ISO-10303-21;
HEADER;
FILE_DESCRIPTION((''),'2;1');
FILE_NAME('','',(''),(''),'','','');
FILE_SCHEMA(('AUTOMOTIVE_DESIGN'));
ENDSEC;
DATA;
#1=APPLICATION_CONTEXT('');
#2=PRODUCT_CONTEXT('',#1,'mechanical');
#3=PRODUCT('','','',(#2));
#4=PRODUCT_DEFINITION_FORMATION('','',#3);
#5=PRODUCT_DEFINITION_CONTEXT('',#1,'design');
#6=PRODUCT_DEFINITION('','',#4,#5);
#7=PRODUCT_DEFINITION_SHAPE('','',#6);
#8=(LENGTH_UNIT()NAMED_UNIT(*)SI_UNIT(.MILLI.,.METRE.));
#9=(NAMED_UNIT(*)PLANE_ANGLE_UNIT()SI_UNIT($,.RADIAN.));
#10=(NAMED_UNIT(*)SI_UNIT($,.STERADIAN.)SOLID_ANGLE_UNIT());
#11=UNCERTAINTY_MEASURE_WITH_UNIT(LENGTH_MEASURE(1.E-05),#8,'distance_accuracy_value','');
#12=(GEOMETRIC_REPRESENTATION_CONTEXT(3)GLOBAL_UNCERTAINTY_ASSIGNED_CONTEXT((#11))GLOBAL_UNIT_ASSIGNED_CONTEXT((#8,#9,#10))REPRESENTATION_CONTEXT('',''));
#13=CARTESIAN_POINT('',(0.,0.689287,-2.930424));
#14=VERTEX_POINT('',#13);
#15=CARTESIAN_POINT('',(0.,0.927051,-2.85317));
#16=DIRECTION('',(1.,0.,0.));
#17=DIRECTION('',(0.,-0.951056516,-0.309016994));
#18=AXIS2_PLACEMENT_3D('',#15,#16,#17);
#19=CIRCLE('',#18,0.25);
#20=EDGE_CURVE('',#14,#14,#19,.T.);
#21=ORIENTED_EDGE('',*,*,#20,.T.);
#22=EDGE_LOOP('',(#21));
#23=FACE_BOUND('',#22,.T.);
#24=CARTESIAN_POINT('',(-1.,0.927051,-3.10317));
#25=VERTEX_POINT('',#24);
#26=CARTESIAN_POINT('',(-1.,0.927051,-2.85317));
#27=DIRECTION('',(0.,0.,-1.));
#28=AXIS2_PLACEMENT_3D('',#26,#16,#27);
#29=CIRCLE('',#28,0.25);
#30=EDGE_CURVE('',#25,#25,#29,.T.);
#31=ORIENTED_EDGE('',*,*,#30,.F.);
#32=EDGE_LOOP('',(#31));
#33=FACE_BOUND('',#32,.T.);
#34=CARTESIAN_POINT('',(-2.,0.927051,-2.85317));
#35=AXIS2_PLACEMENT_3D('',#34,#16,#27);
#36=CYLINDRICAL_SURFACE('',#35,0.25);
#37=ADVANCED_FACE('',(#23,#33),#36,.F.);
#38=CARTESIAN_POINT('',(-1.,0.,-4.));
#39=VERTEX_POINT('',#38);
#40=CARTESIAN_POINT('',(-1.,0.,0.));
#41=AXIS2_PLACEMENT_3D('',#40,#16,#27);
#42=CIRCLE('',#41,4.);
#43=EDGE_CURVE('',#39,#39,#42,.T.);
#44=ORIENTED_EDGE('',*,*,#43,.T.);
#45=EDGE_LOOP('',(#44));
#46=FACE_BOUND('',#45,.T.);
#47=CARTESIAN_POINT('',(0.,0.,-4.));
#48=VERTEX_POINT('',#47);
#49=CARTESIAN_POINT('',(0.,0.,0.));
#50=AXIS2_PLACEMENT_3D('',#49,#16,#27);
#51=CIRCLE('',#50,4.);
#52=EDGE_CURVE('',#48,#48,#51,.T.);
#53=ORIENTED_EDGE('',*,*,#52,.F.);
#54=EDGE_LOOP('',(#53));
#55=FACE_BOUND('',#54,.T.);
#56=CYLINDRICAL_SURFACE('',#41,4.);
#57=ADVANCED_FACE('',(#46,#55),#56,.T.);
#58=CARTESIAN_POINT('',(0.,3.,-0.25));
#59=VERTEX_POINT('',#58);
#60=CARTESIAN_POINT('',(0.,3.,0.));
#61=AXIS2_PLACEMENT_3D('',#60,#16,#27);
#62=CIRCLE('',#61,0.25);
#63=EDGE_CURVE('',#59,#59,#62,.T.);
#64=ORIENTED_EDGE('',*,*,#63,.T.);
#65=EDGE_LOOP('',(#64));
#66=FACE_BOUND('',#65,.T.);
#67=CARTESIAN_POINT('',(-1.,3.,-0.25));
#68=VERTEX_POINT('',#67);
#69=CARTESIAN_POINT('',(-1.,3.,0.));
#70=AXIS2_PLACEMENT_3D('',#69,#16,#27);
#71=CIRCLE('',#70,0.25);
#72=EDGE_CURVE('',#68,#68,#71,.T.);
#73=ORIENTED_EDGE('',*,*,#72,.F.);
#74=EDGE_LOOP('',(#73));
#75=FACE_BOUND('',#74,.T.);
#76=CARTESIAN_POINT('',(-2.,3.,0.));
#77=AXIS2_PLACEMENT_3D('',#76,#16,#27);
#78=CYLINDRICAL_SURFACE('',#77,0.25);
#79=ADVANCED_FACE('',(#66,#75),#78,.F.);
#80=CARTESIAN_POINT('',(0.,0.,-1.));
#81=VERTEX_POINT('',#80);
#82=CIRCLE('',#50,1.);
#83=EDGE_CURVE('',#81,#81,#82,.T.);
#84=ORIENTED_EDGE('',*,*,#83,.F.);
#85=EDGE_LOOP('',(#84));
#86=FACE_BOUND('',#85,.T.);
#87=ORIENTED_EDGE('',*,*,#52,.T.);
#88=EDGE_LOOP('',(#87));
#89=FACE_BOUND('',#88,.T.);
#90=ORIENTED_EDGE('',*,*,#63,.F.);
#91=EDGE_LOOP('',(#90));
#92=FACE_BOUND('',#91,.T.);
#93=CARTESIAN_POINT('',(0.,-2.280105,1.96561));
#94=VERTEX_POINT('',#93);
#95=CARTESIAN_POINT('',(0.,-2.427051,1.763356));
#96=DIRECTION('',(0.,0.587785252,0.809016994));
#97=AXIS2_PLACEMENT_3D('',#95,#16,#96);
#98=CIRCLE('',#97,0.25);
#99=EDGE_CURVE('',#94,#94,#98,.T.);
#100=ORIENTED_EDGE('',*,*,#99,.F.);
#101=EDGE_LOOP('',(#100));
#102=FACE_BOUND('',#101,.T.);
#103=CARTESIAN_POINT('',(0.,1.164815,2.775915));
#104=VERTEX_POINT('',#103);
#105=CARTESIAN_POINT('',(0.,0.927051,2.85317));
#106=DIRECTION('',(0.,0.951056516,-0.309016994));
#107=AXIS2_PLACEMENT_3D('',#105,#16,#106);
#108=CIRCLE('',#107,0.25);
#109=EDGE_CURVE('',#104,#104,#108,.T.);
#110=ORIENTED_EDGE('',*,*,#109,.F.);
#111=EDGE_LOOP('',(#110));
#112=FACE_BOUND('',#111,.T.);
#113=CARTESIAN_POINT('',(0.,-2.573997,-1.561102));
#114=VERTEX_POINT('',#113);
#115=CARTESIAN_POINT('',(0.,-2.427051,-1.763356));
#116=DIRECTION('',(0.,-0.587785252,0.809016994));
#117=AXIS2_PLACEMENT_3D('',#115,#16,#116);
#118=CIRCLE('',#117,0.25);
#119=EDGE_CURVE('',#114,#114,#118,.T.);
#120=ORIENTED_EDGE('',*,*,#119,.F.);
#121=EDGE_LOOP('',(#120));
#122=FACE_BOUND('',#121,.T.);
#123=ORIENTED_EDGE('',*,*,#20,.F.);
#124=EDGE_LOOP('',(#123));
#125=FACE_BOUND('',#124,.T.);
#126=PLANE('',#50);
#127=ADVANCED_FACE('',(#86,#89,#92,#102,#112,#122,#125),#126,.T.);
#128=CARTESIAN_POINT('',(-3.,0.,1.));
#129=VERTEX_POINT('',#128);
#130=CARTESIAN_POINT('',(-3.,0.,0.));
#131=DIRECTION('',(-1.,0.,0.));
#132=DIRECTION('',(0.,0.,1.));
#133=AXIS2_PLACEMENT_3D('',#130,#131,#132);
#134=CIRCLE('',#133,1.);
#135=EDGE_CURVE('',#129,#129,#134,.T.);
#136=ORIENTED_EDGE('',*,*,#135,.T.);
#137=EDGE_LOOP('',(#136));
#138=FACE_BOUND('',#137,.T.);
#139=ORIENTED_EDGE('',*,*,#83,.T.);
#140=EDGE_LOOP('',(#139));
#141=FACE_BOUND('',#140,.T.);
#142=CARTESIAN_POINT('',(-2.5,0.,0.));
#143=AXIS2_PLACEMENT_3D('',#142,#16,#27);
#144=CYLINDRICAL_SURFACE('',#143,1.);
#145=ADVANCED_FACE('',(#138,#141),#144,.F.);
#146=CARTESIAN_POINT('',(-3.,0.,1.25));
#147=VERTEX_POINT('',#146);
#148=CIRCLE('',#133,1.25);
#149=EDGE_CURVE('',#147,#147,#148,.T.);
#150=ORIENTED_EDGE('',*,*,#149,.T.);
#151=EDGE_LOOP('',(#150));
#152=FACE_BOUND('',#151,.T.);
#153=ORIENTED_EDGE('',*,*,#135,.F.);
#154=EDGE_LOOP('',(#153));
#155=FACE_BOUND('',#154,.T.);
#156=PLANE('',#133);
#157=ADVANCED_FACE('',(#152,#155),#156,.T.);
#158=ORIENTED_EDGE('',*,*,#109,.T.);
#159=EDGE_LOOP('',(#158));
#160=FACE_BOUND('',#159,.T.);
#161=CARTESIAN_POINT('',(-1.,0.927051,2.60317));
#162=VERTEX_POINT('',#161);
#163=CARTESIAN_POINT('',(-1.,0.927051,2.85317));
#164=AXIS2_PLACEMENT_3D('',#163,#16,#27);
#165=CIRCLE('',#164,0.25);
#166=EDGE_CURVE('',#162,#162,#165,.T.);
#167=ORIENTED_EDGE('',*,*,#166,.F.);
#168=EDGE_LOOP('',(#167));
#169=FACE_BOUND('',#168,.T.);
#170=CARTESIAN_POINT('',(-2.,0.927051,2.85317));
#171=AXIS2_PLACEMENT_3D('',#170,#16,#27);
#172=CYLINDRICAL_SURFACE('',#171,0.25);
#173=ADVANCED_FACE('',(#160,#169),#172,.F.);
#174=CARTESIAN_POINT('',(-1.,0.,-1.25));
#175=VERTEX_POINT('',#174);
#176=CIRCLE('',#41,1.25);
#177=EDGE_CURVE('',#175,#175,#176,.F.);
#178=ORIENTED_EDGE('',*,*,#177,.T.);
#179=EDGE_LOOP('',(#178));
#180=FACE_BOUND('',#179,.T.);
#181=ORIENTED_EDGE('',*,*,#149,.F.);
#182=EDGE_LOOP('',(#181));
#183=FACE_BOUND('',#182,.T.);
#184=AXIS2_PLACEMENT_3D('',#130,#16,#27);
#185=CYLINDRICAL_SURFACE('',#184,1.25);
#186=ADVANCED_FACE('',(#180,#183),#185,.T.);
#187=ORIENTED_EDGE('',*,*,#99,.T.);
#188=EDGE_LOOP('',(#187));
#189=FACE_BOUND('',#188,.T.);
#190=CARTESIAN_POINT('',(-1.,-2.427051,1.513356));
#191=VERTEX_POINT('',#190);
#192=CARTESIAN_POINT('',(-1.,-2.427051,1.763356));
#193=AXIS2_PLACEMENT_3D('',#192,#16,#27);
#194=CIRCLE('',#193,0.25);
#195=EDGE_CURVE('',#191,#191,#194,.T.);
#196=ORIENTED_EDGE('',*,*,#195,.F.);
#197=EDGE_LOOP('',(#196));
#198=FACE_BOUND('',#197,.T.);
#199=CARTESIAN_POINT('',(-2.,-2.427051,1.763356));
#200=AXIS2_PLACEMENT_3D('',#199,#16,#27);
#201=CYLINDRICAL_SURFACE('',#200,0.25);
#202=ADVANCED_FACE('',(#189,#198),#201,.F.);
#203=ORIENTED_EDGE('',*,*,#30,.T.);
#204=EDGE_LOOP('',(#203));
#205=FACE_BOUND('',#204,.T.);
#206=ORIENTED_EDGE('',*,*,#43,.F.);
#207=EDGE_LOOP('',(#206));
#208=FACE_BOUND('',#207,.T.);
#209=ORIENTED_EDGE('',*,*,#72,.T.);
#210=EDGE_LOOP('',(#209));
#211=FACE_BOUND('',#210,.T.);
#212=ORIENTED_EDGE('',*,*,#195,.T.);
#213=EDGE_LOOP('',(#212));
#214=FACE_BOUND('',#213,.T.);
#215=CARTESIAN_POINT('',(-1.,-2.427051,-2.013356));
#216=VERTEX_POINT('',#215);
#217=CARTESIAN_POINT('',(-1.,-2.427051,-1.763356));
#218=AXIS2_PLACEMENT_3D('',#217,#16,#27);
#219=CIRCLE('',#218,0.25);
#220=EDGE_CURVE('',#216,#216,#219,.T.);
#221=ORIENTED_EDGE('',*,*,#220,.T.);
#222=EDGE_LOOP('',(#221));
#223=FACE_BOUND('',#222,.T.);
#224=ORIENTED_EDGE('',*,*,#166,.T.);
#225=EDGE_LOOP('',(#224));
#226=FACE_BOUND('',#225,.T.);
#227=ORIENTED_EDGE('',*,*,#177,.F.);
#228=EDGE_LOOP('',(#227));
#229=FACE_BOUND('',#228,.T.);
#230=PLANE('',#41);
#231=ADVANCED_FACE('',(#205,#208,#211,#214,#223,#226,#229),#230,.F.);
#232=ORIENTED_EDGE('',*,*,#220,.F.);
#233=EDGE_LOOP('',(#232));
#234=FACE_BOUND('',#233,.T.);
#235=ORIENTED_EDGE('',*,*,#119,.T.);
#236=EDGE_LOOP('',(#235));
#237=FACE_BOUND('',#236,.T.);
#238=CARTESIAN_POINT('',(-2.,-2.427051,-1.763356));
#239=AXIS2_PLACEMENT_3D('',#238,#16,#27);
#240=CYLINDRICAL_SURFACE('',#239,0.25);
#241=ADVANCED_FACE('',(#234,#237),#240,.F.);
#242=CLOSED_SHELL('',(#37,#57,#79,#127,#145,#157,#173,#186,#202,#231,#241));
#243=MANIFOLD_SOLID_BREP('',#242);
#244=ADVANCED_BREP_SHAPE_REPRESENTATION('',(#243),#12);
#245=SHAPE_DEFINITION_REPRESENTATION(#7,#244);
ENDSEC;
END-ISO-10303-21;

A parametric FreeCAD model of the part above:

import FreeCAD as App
import Part
import Sketcher

V = App.Vector

doc = App.newDocument("Part")
params = doc.addObject("Spreadsheet::Sheet", "Params")
for row, (alias, value) in enumerate([
    ("sketch1_diameter", "8 mm"),
    ("pad1_length", "1 mm"),
    ("sketch2_diameter", "2 mm"),
    ("pocket1_length", "2.5 mm"),
    ("sketch3_diameter", "2 mm"),
    ("sketch3_diameter2", "2.5 mm"),
    ("pad2_length", "2 mm"),
    ("sketch4_diameter", "0.5 mm"),
    ("pocket2_length", "2 mm"),
], start=1):
    params.set(f"A{row}", alias)
    params.set(f"B{row}", "=" + value)
    params.setAlias(f"B{row}", alias)

body = doc.addObject("PartDesign::Body", "Body")

# Sketch on YZ plane
sketch1 = doc.addObject("Sketcher::SketchObject", "Sketch")
body.addObject(sketch1)
sketch1.AttachmentSupport = (doc.YZ_Plane, [""])
sketch1.MapMode = "FlatFace"
sketch1.addGeometry(Part.Circle(V(0, 0, 0), V(0, 0, 1), 4), False)
sketch1.addConstraint([
    Sketcher.Constraint("Coincident", 0, 3, -1, 1),
    Sketcher.Constraint("Diameter", 0, 8.0),
])
sketch1.setExpression("Constraints[1]", "Params.sketch1_diameter")
pad1 = doc.addObject("PartDesign::Pad", "Pad")
body.addObject(pad1)
pad1.Profile = sketch1
pad1.setExpression("Length", "Params.pad1_length")
pad1.Reversed = True

# Sketch on YZ plane
sketch2 = doc.addObject("Sketcher::SketchObject", "Sketch001")
body.addObject(sketch2)
sketch2.AttachmentSupport = (doc.YZ_Plane, [""])
sketch2.MapMode = "FlatFace"
sketch2.addGeometry(Part.Circle(V(0, 0, 0), V(0, 0, 1), 1), False)
sketch2.addConstraint([
    Sketcher.Constraint("Coincident", 0, 3, -1, 1),
    Sketcher.Constraint("Diameter", 0, 2.0),
])
sketch2.setExpression("Constraints[1]", "Params.sketch2_diameter")
pocket1 = doc.addObject("PartDesign::Pocket", "Pocket")
body.addObject(pocket1)
pocket1.Profile = sketch2
pocket1.setExpression("Length", "Params.pocket1_length")

# Sketch on YZ plane
sketch3 = doc.addObject("Sketcher::SketchObject", "Sketch002")
body.addObject(sketch3)
sketch3.AttachmentSupport = (doc.YZ_Plane, [""])
sketch3.MapMode = "FlatFace"
sketch3.AttachmentOffset = App.Placement(V(0, 0, -1), App.Rotation())
sketch3.addGeometry([
    Part.Circle(V(0, 0, 0), V(0, 0, 1), 1.2),
    Part.Circle(V(0, 0, 0), V(0, 0, 1), 1),
], False)
sketch3.addConstraint([
    Sketcher.Constraint("Coincident", 0, 3, -1, 1),
    Sketcher.Constraint("Coincident", 1, 3, -1, 1),
    Sketcher.Constraint("Diameter", 1, 2.0),
    Sketcher.Constraint("Diameter", 0, 2.5),
])
sketch3.setExpression("Constraints[2]", "Params.sketch3_diameter")
sketch3.setExpression("Constraints[3]", "Params.sketch3_diameter2")
pad2 = doc.addObject("PartDesign::Pad", "Pad001")
body.addObject(pad2)
pad2.Profile = sketch3
pad2.setExpression("Length", "Params.pad2_length")
pad2.Reversed = True

# Sketch on YZ plane
sketch4 = doc.addObject("Sketcher::SketchObject", "Sketch003")
body.addObject(sketch4)
sketch4.AttachmentSupport = (doc.YZ_Plane, [""])
sketch4.MapMode = "FlatFace"
sketch4.addGeometry(Part.Circle(V(3, 0, 0), V(0, 0, 1), 0.25), False)
sketch4.addConstraint([
    Sketcher.Constraint("PointOnObject", 0, 3, -1),
    Sketcher.Constraint("Diameter", 0, 0.5),
    Sketcher.Constraint("DistanceX", -1, 1, 0, 3, 3.0),
])
sketch4.setExpression("Constraints[1]", "Params.sketch4_diameter")
pocket2 = doc.addObject("PartDesign::Pocket", "Pocket001")
body.addObject(pocket2)
pocket2.Profile = sketch4
pocket2.setExpression("Length", "Params.pocket2_length")
doc.recompute()

polarpattern = doc.addObject("PartDesign::PolarPattern", "PolarPattern")
body.addObject(polarpattern)
polarpattern.Originals = [pocket2]
polarpattern.Axis = (doc.X_Axis, [""])
polarpattern.Angle = 360
polarpattern.Occurrences = 5
body.Tip = polarpattern

doc.recompute()
